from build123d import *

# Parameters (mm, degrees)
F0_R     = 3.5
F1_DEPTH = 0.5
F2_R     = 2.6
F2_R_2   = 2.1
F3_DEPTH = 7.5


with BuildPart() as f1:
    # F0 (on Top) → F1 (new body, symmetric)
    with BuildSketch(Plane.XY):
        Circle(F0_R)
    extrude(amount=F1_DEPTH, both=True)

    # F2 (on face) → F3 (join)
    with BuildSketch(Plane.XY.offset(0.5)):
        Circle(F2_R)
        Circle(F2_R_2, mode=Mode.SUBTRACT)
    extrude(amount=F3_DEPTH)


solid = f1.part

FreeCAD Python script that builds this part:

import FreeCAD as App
import Part
import Sketcher

V = App.Vector

doc = App.newDocument("Part")
body = doc.addObject("PartDesign::Body", "Body")

# Sketch on XY plane
sketch1 = body.newObject("Sketcher::SketchObject", "Sketch")
sketch1.AttachmentSupport = (doc.getObject("XY_Plane"), [""])
sketch1.MapMode = "FlatFace"
sketch1.addGeometry(Part.Circle(V(0, 0, 0), V(0, 0, 1), 3.5), False)
sketch1.addConstraint(Sketcher.Constraint("Coincident", 0, 3, -1, 1))
sketch1.addConstraint(Sketcher.Constraint("Diameter", 0, 7.0))
pad1 = body.newObject("PartDesign::Pad", "Pad")
pad1.Profile = sketch1
pad1.Length = 1
pad1.Midplane = True

# Sketch on XY plane
sketch2 = body.newObject("Sketcher::SketchObject", "Sketch001")
sketch2.AttachmentSupport = (doc.getObject("XY_Plane"), [""])
sketch2.MapMode = "FlatFace"
sketch2.AttachmentOffset = App.Placement(V(0, 0, 0.5), App.Rotation())
sketch2.addGeometry(Part.Circle(V(0, 0, 0), V(0, 0, 1), 2.6), False)
sketch2.addGeometry(Part.Circle(V(0, 0, 0), V(0, 0, 1), 2.1), False)
sketch2.addConstraint(Sketcher.Constraint("Coincident", 0, 3, -1, 1))
sketch2.addConstraint(Sketcher.Constraint("Coincident", 1, 3, -1, 1))
sketch2.addConstraint(Sketcher.Constraint("Diameter", 0, 5.2))
sketch2.addConstraint(Sketcher.Constraint("Diameter", 1, 4.2))
pad2 = body.newObject("PartDesign::Pad", "Pad001")
pad2.Profile = sketch2
pad2.Length = 7.5

doc.recompute()
